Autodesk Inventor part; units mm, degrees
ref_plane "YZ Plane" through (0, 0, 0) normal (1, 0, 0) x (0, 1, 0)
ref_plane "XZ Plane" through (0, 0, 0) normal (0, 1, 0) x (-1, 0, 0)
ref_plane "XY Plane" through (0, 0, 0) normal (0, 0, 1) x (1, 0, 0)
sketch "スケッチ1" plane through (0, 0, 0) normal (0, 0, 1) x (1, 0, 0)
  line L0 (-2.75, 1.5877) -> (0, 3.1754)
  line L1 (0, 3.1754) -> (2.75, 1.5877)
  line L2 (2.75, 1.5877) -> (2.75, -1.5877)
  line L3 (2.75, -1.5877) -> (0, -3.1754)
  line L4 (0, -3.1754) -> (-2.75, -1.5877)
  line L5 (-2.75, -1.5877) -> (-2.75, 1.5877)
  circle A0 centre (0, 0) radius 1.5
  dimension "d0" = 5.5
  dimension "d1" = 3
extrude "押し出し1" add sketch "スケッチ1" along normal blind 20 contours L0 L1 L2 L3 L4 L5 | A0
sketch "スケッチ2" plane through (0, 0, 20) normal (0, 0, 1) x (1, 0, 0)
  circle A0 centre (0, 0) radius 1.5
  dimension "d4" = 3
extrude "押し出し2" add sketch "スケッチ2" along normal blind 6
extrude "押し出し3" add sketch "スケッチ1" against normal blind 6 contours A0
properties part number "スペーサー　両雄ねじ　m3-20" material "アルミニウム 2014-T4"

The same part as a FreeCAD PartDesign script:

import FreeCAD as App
import Part
import Sketcher
from FreeCAD import Vector
Q = App.Units.Quantity

doc = App.newDocument("Part")
body = doc.addObject("PartDesign::Body", "Body")

sketch1 = body.newObject("Sketcher::SketchObject", "Sketch")
sketch1.AttachmentSupport = (doc.getObject("XY_Plane"), [""])
sketch1.MapMode = "FlatFace"
sketch1.addGeometry([
    Part.LineSegment(Vector(0, 3.1754, 0), Vector(-2.75, 1.5877, 0)),
    Part.LineSegment(Vector(-2.75, 1.5877, 0), Vector(-2.75, -1.5877, 0)),
    Part.LineSegment(Vector(-2.75, -1.5877, 0), Vector(0, -3.1754, 0)),
    Part.LineSegment(Vector(0, -3.1754, 0), Vector(2.75, -1.5877, 0)),
    Part.LineSegment(Vector(2.75, -1.5877, 0), Vector(2.75, 1.5877, 0)),
    Part.LineSegment(Vector(2.75, 1.5877, 0), Vector(0, 3.1754, 0)),
], False)
sketch1.addConstraint([
    Sketcher.Constraint("Coincident", 0, 2, 1, 1),
    Sketcher.Constraint("Coincident", 1, 2, 2, 1),
    Sketcher.Constraint("Coincident", 2, 2, 3, 1),
    Sketcher.Constraint("Coincident", 3, 2, 4, 1),
    Sketcher.Constraint("Coincident", 4, 2, 5, 1),
    Sketcher.Constraint("Coincident", 5, 2, 0, 1),
    Sketcher.Constraint("Vertical", 1),
    Sketcher.Constraint("Vertical", 4),
    Sketcher.Constraint("Symmetric", 0, 2, 3, 2, -1, 1),
    Sketcher.Constraint("Symmetric", 2, 2, 5, 2, -1, 1),
    Sketcher.Constraint("PointOnObject", 2, 2, -2),
    Sketcher.Constraint("Parallel", 2, 5),
    Sketcher.Constraint("Horizontal", 1, 2, 3, 2),
    Sketcher.Constraint("DistanceX", 1, 2, 3, 2, 5.5),
    Sketcher.Constraint("Angle", 0, Q("-150.0002 deg")),
    Sketcher.Constraint("DistanceY", 1, 2, 1, 1, 3.1754),
])
pad1 = body.newObject("PartDesign::Pad", "Pad")
pad1.Profile = sketch1
pad1.Length = 20

sketch2 = body.newObject("Sketcher::SketchObject", "Sketch001")
sketch2.AttachmentSupport = (doc.getObject("XY_Plane"), [""])
sketch2.MapMode = "FlatFace"
sketch2.AttachmentOffset = App.Placement(Vector(0, 0, 20), App.Rotation())
sketch2.addGeometry(Part.Circle(Vector(0, 0, 0), Vector(0, 0, 1), 1.5), False)
sketch2.addConstraint([
    Sketcher.Constraint("Coincident", 0, 3, -1, 1),
    Sketcher.Constraint("Diameter", 0, 3.0),
])
pad2 = body.newObject("PartDesign::Pad", "Pad001")
pad2.Profile = sketch2
pad2.Length = 6

sketch3 = body.newObject("Sketcher::SketchObject", "Sketch002")
sketch3.AttachmentSupport = (doc.getObject("XY_Plane"), [""])
sketch3.MapMode = "FlatFace"
sketch3.addGeometry(Part.Circle(Vector(0, 0, 0), Vector(0, 0, 1), 1.5), False)
sketch3.addConstraint([
    Sketcher.Constraint("Coincident", 0, 3, -1, 1),
    Sketcher.Constraint("Diameter", 0, 3.0),
])
pad3 = body.newObject("PartDesign::Pad", "Pad002")
pad3.Profile = sketch3
pad3.Length = 6
pad3.Reversed = True

doc.recompute()
